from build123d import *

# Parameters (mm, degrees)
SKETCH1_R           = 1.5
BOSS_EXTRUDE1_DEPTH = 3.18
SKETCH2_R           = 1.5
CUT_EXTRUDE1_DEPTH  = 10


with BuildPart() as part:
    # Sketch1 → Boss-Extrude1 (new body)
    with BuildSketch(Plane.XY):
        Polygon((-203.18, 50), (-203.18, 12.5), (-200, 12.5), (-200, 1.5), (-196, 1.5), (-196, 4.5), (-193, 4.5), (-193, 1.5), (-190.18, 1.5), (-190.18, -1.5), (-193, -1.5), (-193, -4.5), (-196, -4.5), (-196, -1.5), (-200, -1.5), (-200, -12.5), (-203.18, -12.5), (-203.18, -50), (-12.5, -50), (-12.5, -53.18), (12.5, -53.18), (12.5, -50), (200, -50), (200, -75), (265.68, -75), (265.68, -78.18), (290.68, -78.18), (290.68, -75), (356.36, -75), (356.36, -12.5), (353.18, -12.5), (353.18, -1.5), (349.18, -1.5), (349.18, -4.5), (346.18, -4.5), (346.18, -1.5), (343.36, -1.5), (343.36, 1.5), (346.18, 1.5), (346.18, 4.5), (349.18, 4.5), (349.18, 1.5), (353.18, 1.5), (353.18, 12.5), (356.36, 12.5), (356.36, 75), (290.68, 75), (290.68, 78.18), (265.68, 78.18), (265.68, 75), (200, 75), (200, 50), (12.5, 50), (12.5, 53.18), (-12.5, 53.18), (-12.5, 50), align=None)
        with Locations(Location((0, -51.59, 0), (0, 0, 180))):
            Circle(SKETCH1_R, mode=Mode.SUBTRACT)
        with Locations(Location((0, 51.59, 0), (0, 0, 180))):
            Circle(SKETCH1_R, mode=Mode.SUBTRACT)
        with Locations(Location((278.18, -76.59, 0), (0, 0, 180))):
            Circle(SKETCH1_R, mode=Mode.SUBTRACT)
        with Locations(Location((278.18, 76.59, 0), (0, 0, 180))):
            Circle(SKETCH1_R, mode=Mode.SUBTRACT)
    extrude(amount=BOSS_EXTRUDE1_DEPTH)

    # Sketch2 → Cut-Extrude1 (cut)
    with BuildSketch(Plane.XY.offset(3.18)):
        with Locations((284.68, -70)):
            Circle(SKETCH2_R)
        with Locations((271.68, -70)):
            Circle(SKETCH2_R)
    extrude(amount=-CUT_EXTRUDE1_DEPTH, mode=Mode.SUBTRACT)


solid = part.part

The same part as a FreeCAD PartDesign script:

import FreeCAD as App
import Part
import Sketcher


def add_polygon(sketch, points):
    """Adds a closed chain of lines whose ends are joined by coincident constraints."""
    first, n = sketch.GeometryCount, len(points)
    for a, b in zip(points, points[1:] + points[:1]):
        sketch.addGeometry(Part.LineSegment(App.Vector(*a, 0), App.Vector(*b, 0)), False)
    for i in range(n):
        sketch.addConstraint(Sketcher.Constraint("Coincident", first + i, 2, first + (i + 1) % n, 1))

doc = App.newDocument("Part")
body = doc.addObject("PartDesign::Body", "Body")

sketch1 = doc.addObject("Sketcher::SketchObject", "Sketch")
body.addObject(sketch1)
sketch1.AttachmentSupport = (doc.XY_Plane, [""])
sketch1.MapMode = "FlatFace"
add_polygon(sketch1, [(-203.2, 50), (-203.2, 12.5), (-200, 12.5), (-200, 1.5), (-196, 1.5), (-196, 4.5), (-193, 4.5), (-193, 1.5), (-190.2, 1.5), (-190.2, -1.5), (-193, -1.5), (-193, -4.5), (-196, -4.5), (-196, -1.5), (-200, -1.5), (-200, -12.5), (-203.2, -12.5), (-203.2, -50), (-12.5, -50), (-12.5, -53.2), (12.5, -53.2), (12.5, -50), (200, -50), (200, -75), (265.7, -75), (265.7, -78.2), (290.7, -78.2), (290.7, -75), (356.4, -75), (356.4, -12.5), (353.2, -12.5), (353.2, -1.5), (349.2, -1.5), (349.2, -4.5), (346.2, -4.5), (346.2, -1.5), (343.4, -1.5), (343.4, 1.5), (346.2, 1.5), (346.2, 4.5), (349.2, 4.5), (349.2, 1.5), (353.2, 1.5), (353.2, 12.5), (356.4, 12.5), (356.4, 75), (290.7, 75), (290.7, 78.2), (265.7, 78.2), (265.7, 75), (200, 75), (200, 50), (12.5, 50), (12.5, 53.2), (-12.5, 53.2), (-12.5, 50)])
sketch1.addGeometry(Part.Circle(App.Vector(0, -51.6, 0), App.Vector(0, 0, 1), 1.5), False)
sketch1.addGeometry(Part.Circle(App.Vector(278.2, -76.6, 0), App.Vector(0, 0, 1), 1.5), False)
sketch1.addGeometry(Part.Circle(App.Vector(0, 51.6, 0), App.Vector(0, 0, 1), 1.5), False)
sketch1.addGeometry(Part.Circle(App.Vector(278.2, 76.6, 0), App.Vector(0, 0, 1), 1.5), False)
sketch1.addConstraint([
    Sketcher.Constraint("Vertical", 0),
    Sketcher.Constraint("Horizontal", 1),
    Sketcher.Constraint("Vertical", 2),
    Sketcher.Constraint("Horizontal", 3),
    Sketcher.Constraint("Vertical", 4),
    Sketcher.Constraint("Horizontal", 5),
    Sketcher.Constraint("Vertical", 6),
    Sketcher.Constraint("Horizontal", 7),
    Sketcher.Constraint("Vertical", 8),
    Sketcher.Constraint("Horizontal", 9),
    Sketcher.Constraint("Vertical", 10),
    Sketcher.Constraint("Horizontal", 11),
    Sketcher.Constraint("Vertical", 12),
    Sketcher.Constraint("Horizontal", 13),
    Sketcher.Constraint("Vertical", 14),
    Sketcher.Constraint("Horizontal", 15),
    Sketcher.Constraint("Vertical", 16),
    Sketcher.Constraint("Horizontal", 17),
    Sketcher.Constraint("Vertical", 18),
    Sketcher.Constraint("Horizontal", 19),
    Sketcher.Constraint("Vertical", 20),
    Sketcher.Constraint("Horizontal", 21),
    Sketcher.Constraint("Vertical", 22),
    Sketcher.Constraint("Horizontal", 23),
    Sketcher.Constraint("Vertical", 24),
    Sketcher.Constraint("Horizontal", 25),
    Sketcher.Constraint("Vertical", 26),
    Sketcher.Constraint("Horizontal", 27),
    Sketcher.Constraint("Vertical", 28),
    Sketcher.Constraint("Horizontal", 29),
    Sketcher.Constraint("Vertical", 30),
    Sketcher.Constraint("Horizontal", 31),
    Sketcher.Constraint("Vertical", 32),
    Sketcher.Constraint("Horizontal", 33),
    Sketcher.Constraint("Vertical", 34),
    Sketcher.Constraint("Horizontal", 35),
    Sketcher.Constraint("Vertical", 36),
    Sketcher.Constraint("Horizontal", 37),
    Sketcher.Constraint("Vertical", 38),
    Sketcher.Constraint("Horizontal", 39),
    Sketcher.Constraint("Vertical", 40),
    Sketcher.Constraint("Horizontal", 41),
    Sketcher.Constraint("Vertical", 42),
    Sketcher.Constraint("Horizontal", 43),
    Sketcher.Constraint("Vertical", 44),
    Sketcher.Constraint("Horizontal", 45),
    Sketcher.Constraint("Vertical", 46),
    Sketcher.Constraint("Horizontal", 47),
    Sketcher.Constraint("Vertical", 48),
    Sketcher.Constraint("Horizontal", 49),
    Sketcher.Constraint("Vertical", 50),
    Sketcher.Constraint("Horizontal", 51),
    Sketcher.Constraint("Vertical", 52),
    Sketcher.Constraint("Horizontal", 53),
    Sketcher.Constraint("Vertical", 54),
    Sketcher.Constraint("Horizontal", 55),
    Sketcher.Constraint("Equal", 56, 57),
    Sketcher.Constraint("Equal", 57, 58),
    Sketcher.Constraint("Equal", 58, 59),
    Sketcher.Constraint("Symmetric", 56, 3, 58, 3, -1, 1),
    Sketcher.Constraint("Symmetric", 17, 2, 51, 2, -1, 1),
    Sketcher.Constraint("Symmetric", 19, 2, 53, 2, -1, 1),
    Sketcher.Constraint("Symmetric", 17, 2, 20, 2, -2),
    Sketcher.Constraint("Symmetric", 57, 3, 59, 3, -1),
    Sketcher.Constraint("Symmetric", 6, 2, 9, 2, -1),
    Sketcher.Constraint("Symmetric", 4, 2, 11, 2, -1),
    Sketcher.Constraint("Symmetric", 2, 2, 13, 2, -1),
    Sketcher.Constraint("Symmetric", 0, 2, 15, 2, -1),
    Sketcher.Constraint("Symmetric", 34, 2, 37, 2, -1),
    Sketcher.Constraint("Symmetric", 32, 2, 39, 2, -1),
    Sketcher.Constraint("Symmetric", 30, 2, 41, 2, -1),
    Sketcher.Constraint("Symmetric", 28, 2, 43, 2, -1),
    Sketcher.Constraint("Symmetric", 26, 2, 45, 2, -1),
    Sketcher.Constraint("Symmetric", 24, 2, 47, 2, -1),
    Sketcher.Constraint("Symmetric", 22, 2, 49, 2, -1),
    Sketcher.Constraint("PointOnObject", 56, 3, -2),
    Sketcher.Constraint("Horizontal", 3, 2, 6, 2),
    Sketcher.Constraint("Horizontal", 23, 2, 26, 2),
    Sketcher.Constraint("Horizontal", 15, 2, 28, 2),
    Sketcher.Constraint("Horizontal", 13, 2, 30, 2),
    Sketcher.Constraint("Horizontal", 11, 2, 32, 2),
    Sketcher.Constraint("Horizontal", 31, 2, 34, 2),
    Sketcher.Constraint("Horizontal", 51, 2, 54, 2),
    Sketcher.Constraint("Equal", 19, 25),
    Sketcher.Constraint("Equal", 23, 27),
    Sketcher.Constraint("Equal", 15, 29),
    Sketcher.Constraint("Equal", 13, 31),
    Sketcher.Constraint("Equal", 11, 33),
    Sketcher.Constraint("Equal", 9, 35),
    Sketcher.Constraint("Equal", 39, 4),
    Sketcher.Constraint("Equal", 6, 8),
    Sketcher.Constraint("Equal", 43, 18),
    Sketcher.Constraint("Equal", 53, 22),
    Sketcher.Constraint("Equal", 20, 24),
    Sketcher.Constraint("Diameter", 56, 3.0),
    Sketcher.Constraint("DistanceX", 3, 1, 3, 2, 4.0),
    Sketcher.Constraint("DistanceX", 5, 1, 5, 2, 3.0),
    Sketcher.Constraint("DistanceX", 19, 1, 19, 2, 25.0),
    Sketcher.Constraint("DistanceY", 2, 2, 2, 1, 11.0),
    Sketcher.Constraint("DistanceX", 21, 1, 21, 2, 187.5),
    Sketcher.Constraint("DistanceY", 0, 2, 0, 1, 37.5),
    Sketcher.Constraint("DistanceX", 1, 2, -1, 1, 200.0),
    Sketcher.Constraint("DistanceY", 57, 3, 56, 3, 25.0),
    Sketcher.Constraint("DistanceX", 57, 3, 29, 2, 75.0),
    Sketcher.Constraint("DistanceX", 1, 1, 1, 2, 3.18),
    Sketcher.Constraint("DistanceX", 7, 1, 7, 2, 2.82),
    Sketcher.Constraint("DistanceX", 23, 1, 23, 2, 65.68),
    Sketcher.Constraint("DistanceY", 56, 3, -1, 1, 51.59),
])
pad1 = doc.addObject("PartDesign::Pad", "Pad")
body.addObject(pad1)
pad1.Profile = sketch1
pad1.Length = 3.18

sketch2 = doc.addObject("Sketcher::SketchObject", "Sketch001")
body.addObject(sketch2)
sketch2.AttachmentSupport = (doc.XY_Plane, [""])
sketch2.MapMode = "FlatFace"
sketch2.AttachmentOffset = App.Placement(App.Vector(0, 0, 3.18), App.Rotation())
sketch2.addGeometry([
    Part.Circle(App.Vector(284.7, -70, 0), App.Vector(0, 0, 1), 1.5),
    Part.Circle(App.Vector(271.7, -70, 0), App.Vector(0, 0, 1), 1.5),
], False)
sketch2.addConstraint([
    Sketcher.Constraint("Equal", 0, 1),
    Sketcher.Constraint("Horizontal", 0, 3, 1, 3),
    Sketcher.Constraint("Diameter", 0, 3.0),
    Sketcher.Constraint("DistanceY", 0, 3, -1, 1, 70.0),
    Sketcher.Constraint("DistanceX", 1, 3, 0, 3, 13.0),
    Sketcher.Constraint("DistanceX", -1, 1, 0, 3, 284.68),
])
pocket1 = doc.addObject("PartDesign::Pocket", "Pocket")
body.addObject(pocket1)
pocket1.Profile = sketch2
pocket1.Length = 10

doc.recompute()
